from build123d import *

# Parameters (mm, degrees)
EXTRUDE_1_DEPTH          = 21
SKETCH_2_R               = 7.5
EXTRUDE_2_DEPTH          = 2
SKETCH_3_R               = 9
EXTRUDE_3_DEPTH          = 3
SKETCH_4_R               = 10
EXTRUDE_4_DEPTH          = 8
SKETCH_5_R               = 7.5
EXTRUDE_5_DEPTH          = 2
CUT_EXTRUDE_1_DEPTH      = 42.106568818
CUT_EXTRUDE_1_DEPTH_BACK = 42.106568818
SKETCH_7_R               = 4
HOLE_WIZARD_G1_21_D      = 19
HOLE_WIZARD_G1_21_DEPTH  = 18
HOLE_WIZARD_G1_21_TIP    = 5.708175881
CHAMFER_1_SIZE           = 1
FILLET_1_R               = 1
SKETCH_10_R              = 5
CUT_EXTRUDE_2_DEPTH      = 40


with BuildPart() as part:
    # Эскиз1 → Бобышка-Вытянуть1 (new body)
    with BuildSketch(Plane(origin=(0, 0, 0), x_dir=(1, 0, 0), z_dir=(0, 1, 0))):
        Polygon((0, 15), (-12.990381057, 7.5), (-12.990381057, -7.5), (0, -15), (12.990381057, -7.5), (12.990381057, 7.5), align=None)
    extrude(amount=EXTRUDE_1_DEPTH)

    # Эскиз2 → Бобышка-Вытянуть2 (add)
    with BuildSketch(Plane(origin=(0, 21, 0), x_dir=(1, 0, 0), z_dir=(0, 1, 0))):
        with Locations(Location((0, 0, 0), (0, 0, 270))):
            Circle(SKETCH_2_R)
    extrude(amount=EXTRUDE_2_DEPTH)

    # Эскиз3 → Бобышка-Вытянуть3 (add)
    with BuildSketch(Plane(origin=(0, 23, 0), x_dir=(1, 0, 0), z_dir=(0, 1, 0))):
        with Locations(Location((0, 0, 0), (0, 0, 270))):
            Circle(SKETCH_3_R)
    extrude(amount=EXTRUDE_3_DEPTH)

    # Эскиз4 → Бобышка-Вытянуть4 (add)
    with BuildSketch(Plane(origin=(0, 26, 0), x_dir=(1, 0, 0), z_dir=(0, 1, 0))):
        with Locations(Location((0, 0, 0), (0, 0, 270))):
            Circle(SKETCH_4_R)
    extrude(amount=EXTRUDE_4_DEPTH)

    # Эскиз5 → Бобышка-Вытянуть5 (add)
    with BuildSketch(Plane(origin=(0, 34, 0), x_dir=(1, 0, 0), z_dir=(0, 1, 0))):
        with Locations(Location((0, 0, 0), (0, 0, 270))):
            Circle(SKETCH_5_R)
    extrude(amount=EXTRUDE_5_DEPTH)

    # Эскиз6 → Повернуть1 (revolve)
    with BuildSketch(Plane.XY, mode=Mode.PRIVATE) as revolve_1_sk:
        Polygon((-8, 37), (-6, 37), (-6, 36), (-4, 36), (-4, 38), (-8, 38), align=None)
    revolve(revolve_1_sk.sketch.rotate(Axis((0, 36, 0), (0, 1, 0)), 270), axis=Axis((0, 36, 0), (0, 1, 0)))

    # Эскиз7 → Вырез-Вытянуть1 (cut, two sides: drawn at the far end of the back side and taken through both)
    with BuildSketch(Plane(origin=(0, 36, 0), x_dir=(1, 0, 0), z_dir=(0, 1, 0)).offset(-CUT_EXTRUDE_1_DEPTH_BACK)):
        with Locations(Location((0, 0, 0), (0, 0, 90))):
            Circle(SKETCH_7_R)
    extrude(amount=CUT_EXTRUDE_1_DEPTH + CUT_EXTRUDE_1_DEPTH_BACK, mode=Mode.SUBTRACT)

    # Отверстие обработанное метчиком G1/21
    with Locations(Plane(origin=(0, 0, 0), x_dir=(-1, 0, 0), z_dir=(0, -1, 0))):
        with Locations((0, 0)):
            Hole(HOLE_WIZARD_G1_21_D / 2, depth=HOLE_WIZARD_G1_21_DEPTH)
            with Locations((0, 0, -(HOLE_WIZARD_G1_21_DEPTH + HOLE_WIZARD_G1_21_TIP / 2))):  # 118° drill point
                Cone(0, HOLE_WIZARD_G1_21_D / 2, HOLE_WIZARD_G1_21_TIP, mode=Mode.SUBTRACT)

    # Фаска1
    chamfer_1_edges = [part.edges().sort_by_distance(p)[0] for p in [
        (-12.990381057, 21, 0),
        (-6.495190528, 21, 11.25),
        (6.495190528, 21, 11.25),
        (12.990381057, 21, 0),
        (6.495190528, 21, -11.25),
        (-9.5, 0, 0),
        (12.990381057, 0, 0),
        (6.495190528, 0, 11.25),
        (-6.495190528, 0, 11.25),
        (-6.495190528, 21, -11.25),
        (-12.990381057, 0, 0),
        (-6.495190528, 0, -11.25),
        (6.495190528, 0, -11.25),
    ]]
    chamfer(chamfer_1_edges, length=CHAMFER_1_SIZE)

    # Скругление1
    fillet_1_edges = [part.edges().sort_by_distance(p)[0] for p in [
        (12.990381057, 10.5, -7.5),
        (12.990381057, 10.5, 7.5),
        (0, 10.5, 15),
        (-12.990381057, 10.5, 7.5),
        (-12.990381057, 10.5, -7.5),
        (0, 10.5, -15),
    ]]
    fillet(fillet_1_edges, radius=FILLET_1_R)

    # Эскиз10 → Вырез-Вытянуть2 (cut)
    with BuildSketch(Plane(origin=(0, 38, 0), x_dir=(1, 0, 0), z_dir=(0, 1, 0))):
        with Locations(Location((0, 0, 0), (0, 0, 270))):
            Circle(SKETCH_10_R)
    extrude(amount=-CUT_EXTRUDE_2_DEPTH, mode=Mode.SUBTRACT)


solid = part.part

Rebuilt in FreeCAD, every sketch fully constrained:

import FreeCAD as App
import Part
import Sketcher
from FreeCAD import Vector
Q = App.Units.Quantity


def edges_at(feature, points):
    """Names of the edges that pass closest to the given points."""
    edges = feature.Shape.Edges
    near = lambda p: min(range(len(edges)), key=lambda i: edges[i].distToShape(Part.Vertex(*p))[0])
    return sorted({f"Edge{near(p) + 1}" for p in points})

doc = App.newDocument("Part")
body = doc.addObject("PartDesign::Body", "Body")

sketch1 = body.newObject("Sketcher::SketchObject", "Sketch")
sketch1.AttachmentSupport = (doc.getObject("XZ_Plane"), [""])
sketch1.MapMode = "FlatFace"
sketch1.addGeometry([
    Part.LineSegment(Vector(0, -15, 0), Vector(-12.990381, -7.5, 0)),
    Part.LineSegment(Vector(-12.990381, -7.5, 0), Vector(-12.990381, 7.5, 0)),
    Part.LineSegment(Vector(-12.990381, 7.5, 0), Vector(0, 15, 0)),
    Part.LineSegment(Vector(0, 15, 0), Vector(12.990381, 7.5, 0)),
    Part.LineSegment(Vector(12.990381, 7.5, 0), Vector(12.990381, -7.5, 0)),
    Part.LineSegment(Vector(12.990381, -7.5, 0), Vector(0, -15, 0)),
], False)
sketch1.addConstraint([
    Sketcher.Constraint("Coincident", 0, 2, 1, 1),
    Sketcher.Constraint("Coincident", 1, 2, 2, 1),
    Sketcher.Constraint("Coincident", 2, 2, 3, 1),
    Sketcher.Constraint("Coincident", 3, 2, 4, 1),
    Sketcher.Constraint("Coincident", 4, 2, 5, 1),
    Sketcher.Constraint("Coincident", 5, 2, 0, 1),
    Sketcher.Constraint("Vertical", 1),
    Sketcher.Constraint("Vertical", 4),
    Sketcher.Constraint("Symmetric", 0, 2, 3, 2, -1, 1),
    Sketcher.Constraint("Symmetric", 2, 2, 5, 2, -1, 1),
    Sketcher.Constraint("PointOnObject", 2, 2, -2),
    Sketcher.Constraint("Parallel", 2, 5),
    Sketcher.Constraint("Horizontal", 1, 2, 3, 2),
    Sketcher.Constraint("DistanceY", 1, 1, 1, 2, Q("15 mm")),
    Sketcher.Constraint("Angle", 0, Q("150 deg")),
    Sketcher.Constraint("Distance", 0, Q("15 mm")),
])
pad1 = body.newObject("PartDesign::Pad", "Pad")
pad1.Profile = sketch1
pad1.Length = 21
pad1.Reversed = True

sketch2 = body.newObject("Sketcher::SketchObject", "Sketch001")
sketch2.AttachmentSupport = (doc.getObject("XZ_Plane"), [""])
sketch2.MapMode = "FlatFace"
sketch2.AttachmentOffset = App.Placement(Vector(0, 0, -21), App.Rotation())
sketch2.addGeometry(Part.Circle(Vector(0, 0, 0), Vector(0, 0, 1), 7.5), False)
sketch2.addConstraint([
    Sketcher.Constraint("Coincident", 0, 3, -1, 1),
    Sketcher.Constraint("Diameter", 0, Q("15 mm")),
])
pad2 = body.newObject("PartDesign::Pad", "Pad001")
pad2.Profile = sketch2
pad2.Length = 2
pad2.Reversed = True

sketch3 = body.newObject("Sketcher::SketchObject", "Sketch002")
sketch3.AttachmentSupport = (doc.getObject("XZ_Plane"), [""])
sketch3.MapMode = "FlatFace"
sketch3.AttachmentOffset = App.Placement(Vector(0, 0, -23), App.Rotation())
sketch3.addGeometry(Part.Circle(Vector(0, 0, 0), Vector(0, 0, 1), 9), False)
sketch3.addConstraint([
    Sketcher.Constraint("Coincident", 0, 3, -1, 1),
    Sketcher.Constraint("Diameter", 0, Q("18 mm")),
])
pad3 = body.newObject("PartDesign::Pad", "Pad002")
pad3.Profile = sketch3
pad3.Length = 3
pad3.Reversed = True

sketch4 = body.newObject("Sketcher::SketchObject", "Sketch003")
sketch4.AttachmentSupport = (doc.getObject("XZ_Plane"), [""])
sketch4.MapMode = "FlatFace"
sketch4.AttachmentOffset = App.Placement(Vector(0, 0, -26), App.Rotation())
sketch4.addGeometry(Part.Circle(Vector(0, 0, 0), Vector(0, 0, 1), 10), False)
sketch4.addConstraint([
    Sketcher.Constraint("Coincident", 0, 3, -1, 1),
    Sketcher.Constraint("Diameter", 0, Q("20 mm")),
])
pad4 = body.newObject("PartDesign::Pad", "Pad003")
pad4.Profile = sketch4
pad4.Length = 8
pad4.Reversed = True

sketch5 = body.newObject("Sketcher::SketchObject", "Sketch004")
sketch5.AttachmentSupport = (doc.getObject("XZ_Plane"), [""])
sketch5.MapMode = "FlatFace"
sketch5.AttachmentOffset = App.Placement(Vector(0, 0, -34), App.Rotation())
sketch5.addGeometry(Part.Circle(Vector(0, 0, 0), Vector(0, 0, 1), 7.5), False)
sketch5.addConstraint([
    Sketcher.Constraint("Coincident", 0, 3, -1, 1),
    Sketcher.Constraint("Diameter", 0, Q("15 mm")),
])
pad5 = body.newObject("PartDesign::Pad", "Pad004")
pad5.Profile = sketch5
pad5.Length = 2
pad5.Reversed = True

sketch6 = body.newObject("Sketcher::SketchObject", "Sketch005")
sketch6.AttachmentSupport = (doc.getObject("XY_Plane"), [""])
sketch6.MapMode = "FlatFace"
sketch6.addGeometry([
    Part.LineSegment(Vector(-8, 37, 0), Vector(-6, 37, 0)),
    Part.LineSegment(Vector(-6, 37, 0), Vector(-6, 36, 0)),
    Part.LineSegment(Vector(-6, 36, 0), Vector(-4, 36, 0)),
    Part.LineSegment(Vector(-4, 36, 0), Vector(-4, 38, 0)),
    Part.LineSegment(Vector(-4, 38, 0), Vector(-8, 38, 0)),
    Part.LineSegment(Vector(-8, 38, 0), Vector(-8, 37, 0)),
], False)
sketch6.addConstraint([
    Sketcher.Constraint("Coincident", 0, 2, 1, 1),
    Sketcher.Constraint("Coincident", 1, 2, 2, 1),
    Sketcher.Constraint("Coincident", 2, 2, 3, 1),
    Sketcher.Constraint("Coincident", 3, 2, 4, 1),
    Sketcher.Constraint("Coincident", 4, 2, 5, 1),
    Sketcher.Constraint("Coincident", 5, 2, 0, 1),
    Sketcher.Constraint("Horizontal", 0),
    Sketcher.Constraint("Vertical", 1),
    Sketcher.Constraint("Horizontal", 2),
    Sketcher.Constraint("Vertical", 3),
    Sketcher.Constraint("Horizontal", 4),
    Sketcher.Constraint("Vertical", 5),
    Sketcher.Constraint("Equal", 0, 2),
    Sketcher.Constraint("Equal", 2, 3),
    Sketcher.Constraint("Equal", 1, 5),
    Sketcher.Constraint("DistanceX", 0, 1, 0, 2, Q("2 mm")),
    Sketcher.Constraint("DistanceX", 0, 2, -1, 1, Q("6 mm")),
    Sketcher.Constraint("DistanceY", -1, 1, 0, 2, Q("37 mm")),
])
revolution = body.newObject("PartDesign::Revolution", "Revolution")
revolution.Profile = sketch6
revolution.ReferenceAxis = (sketch6, ["V_Axis"])
revolution.Angle = 360

sketch7 = body.newObject("Sketcher::SketchObject", "Sketch006")
sketch7.AttachmentSupport = (doc.getObject("XZ_Plane"), [""])
sketch7.MapMode = "FlatFace"
sketch7.AttachmentOffset = App.Placement(Vector(0, 0, -36), App.Rotation())
sketch7.addGeometry(Part.Circle(Vector(0, 0, 0), Vector(0, 0, 1), 4), False)
sketch7.addConstraint([
    Sketcher.Constraint("Coincident", 0, 3, -1, 1),
    Sketcher.Constraint("Diameter", 0, Q("8 mm")),
])
pocket1 = body.newObject("PartDesign::Pocket", "Pocket")
pocket1.Profile = sketch7
pocket1.Type = "ThroughAll"
pocket1.Midplane = True

sketch8 = body.newObject("Sketcher::SketchObject", "Sketch007")
sketch8.AttachmentSupport = (doc.getObject("XZ_Plane"), [""])
sketch8.MapMode = "FlatFace"
sketch8.addGeometry(Part.Circle(Vector(0, 0, 0), Vector(0, 0, 1), 9.5), False)
sketch8.addConstraint([
    Sketcher.Constraint("Coincident", 0, 3, -1, 1),
    Sketcher.Constraint("Diameter", 0, Q("19 mm")),
])
doc.recompute()
hole = body.newObject("PartDesign::Hole", "Hole")
hole.Profile = sketch8
hole.ThreadType = "None"
hole.Diameter = 19
hole.DepthType = "Dimension"
hole.Depth = 18
hole.DrillPoint = "Angled"
hole.DrillPointAngle = 118
doc.recompute()

chamfer = body.newObject("PartDesign::Chamfer", "Chamfer")
chamfer.Base = (hole, edges_at(hole, [
    (-12.99, 21, 0),
    (-6.495, 21, 11.25),
    (6.495, 21, 11.25),
    (12.99, 21, 0),
    (6.495, 21, -11.25),
    (-9.5, 0, 0),
    (12.99, 0, 0),
    (6.495, 0, 11.25),
    (-6.495, 0, 11.25),
    (-6.495, 21, -11.25),
    (-12.99, 0, 0),
    (-6.495, 0, -11.25),
    (6.495, 0, -11.25),
]))
chamfer.Size = 1
doc.recompute()

fillet = body.newObject("PartDesign::Fillet", "Fillet")
fillet.Base = (chamfer, edges_at(chamfer, [
    (12.99, 10.5, -7.5),
    (12.99, 10.5, 7.5),
    (0, 10.5, 15),
    (-12.99, 10.5, 7.5),
    (-12.99, 10.5, -7.5),
    (0, 10.5, -15),
]))
fillet.Radius = 1

sketch9 = body.newObject("Sketcher::SketchObject", "Sketch008")
sketch9.AttachmentSupport = (doc.getObject("XZ_Plane"), [""])
sketch9.MapMode = "FlatFace"
sketch9.AttachmentOffset = App.Placement(Vector(0, 0, -38), App.Rotation())
sketch9.addGeometry(Part.Circle(Vector(0, 0, 0), Vector(0, 0, 1), 5), False)
sketch9.addConstraint([
    Sketcher.Constraint("Coincident", 0, 3, -1, 1),
    Sketcher.Constraint("Diameter", 0, Q("10 mm")),
])
pocket2 = body.newObject("PartDesign::Pocket", "Pocket001")
pocket2.Profile = sketch9
pocket2.Length = 40
pocket2.Reversed = True

doc.recompute()
